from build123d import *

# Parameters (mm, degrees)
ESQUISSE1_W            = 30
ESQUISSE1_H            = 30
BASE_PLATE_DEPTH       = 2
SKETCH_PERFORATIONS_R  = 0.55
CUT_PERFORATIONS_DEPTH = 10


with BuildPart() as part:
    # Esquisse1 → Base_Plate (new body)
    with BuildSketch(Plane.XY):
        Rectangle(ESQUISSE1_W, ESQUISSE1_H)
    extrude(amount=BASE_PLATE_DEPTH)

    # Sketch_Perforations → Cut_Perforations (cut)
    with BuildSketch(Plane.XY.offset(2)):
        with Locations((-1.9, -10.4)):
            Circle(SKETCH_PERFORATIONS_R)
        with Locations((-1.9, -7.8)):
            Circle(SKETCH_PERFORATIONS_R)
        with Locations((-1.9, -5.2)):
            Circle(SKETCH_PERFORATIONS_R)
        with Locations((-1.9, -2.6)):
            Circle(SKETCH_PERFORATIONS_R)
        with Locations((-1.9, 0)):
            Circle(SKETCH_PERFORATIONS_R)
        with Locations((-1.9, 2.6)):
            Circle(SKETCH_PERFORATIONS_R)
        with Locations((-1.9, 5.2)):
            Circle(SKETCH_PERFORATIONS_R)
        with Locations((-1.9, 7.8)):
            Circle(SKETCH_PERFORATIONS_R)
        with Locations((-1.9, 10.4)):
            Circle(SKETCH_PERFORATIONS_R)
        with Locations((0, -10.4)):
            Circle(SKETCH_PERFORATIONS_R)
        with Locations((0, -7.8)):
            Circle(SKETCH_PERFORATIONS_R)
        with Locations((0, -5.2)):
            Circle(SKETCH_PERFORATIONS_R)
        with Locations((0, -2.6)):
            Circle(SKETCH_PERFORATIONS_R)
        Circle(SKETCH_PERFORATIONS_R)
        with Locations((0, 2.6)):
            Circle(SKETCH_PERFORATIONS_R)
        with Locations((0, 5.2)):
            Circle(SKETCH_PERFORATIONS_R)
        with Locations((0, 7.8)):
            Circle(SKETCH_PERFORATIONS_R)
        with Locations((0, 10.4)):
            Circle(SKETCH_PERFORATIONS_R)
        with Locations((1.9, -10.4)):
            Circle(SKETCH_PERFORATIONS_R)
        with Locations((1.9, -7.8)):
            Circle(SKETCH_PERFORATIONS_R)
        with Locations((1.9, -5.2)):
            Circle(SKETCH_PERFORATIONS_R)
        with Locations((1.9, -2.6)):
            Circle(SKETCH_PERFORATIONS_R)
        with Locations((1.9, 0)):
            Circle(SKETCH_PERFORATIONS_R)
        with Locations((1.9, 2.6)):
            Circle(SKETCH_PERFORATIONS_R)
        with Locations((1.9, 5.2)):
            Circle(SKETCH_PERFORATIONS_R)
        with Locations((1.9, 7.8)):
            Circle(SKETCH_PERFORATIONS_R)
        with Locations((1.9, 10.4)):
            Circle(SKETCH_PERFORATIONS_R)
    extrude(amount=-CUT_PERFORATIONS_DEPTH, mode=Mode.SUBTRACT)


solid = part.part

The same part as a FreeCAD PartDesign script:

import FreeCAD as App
import Part
import Sketcher
from FreeCAD import Vector

doc = App.newDocument("Part")
body = doc.addObject("PartDesign::Body", "Body")

# Sketch on XY plane
sketch1 = body.newObject("Sketcher::SketchObject", "Sketch")
sketch1.AttachmentSupport = (doc.getObject("XY_Plane"), [""])
sketch1.MapMode = "FlatFace"
sketch1.addGeometry([
    Part.LineSegment(Vector(-15, 15, 0), Vector(-15, -15, 0)),
    Part.LineSegment(Vector(-15, -15, 0), Vector(15, -15, 0)),
    Part.LineSegment(Vector(15, -15, 0), Vector(15, 15, 0)),
    Part.LineSegment(Vector(15, 15, 0), Vector(-15, 15, 0)),
], False)
sketch1.addConstraint([
    Sketcher.Constraint("Coincident", 0, 2, 1, 1),
    Sketcher.Constraint("Coincident", 1, 2, 2, 1),
    Sketcher.Constraint("Coincident", 2, 2, 3, 1),
    Sketcher.Constraint("Coincident", 3, 2, 0, 1),
    Sketcher.Constraint("Vertical", 0),
    Sketcher.Constraint("Horizontal", 1),
    Sketcher.Constraint("Vertical", 2),
    Sketcher.Constraint("Horizontal", 3),
    Sketcher.Constraint("Symmetric", 0, 2, 2, 2, -1, 1),
    Sketcher.Constraint("Equal", 3, 0),
    Sketcher.Constraint("DistanceX", 1, 1, 1, 2, 30.0),
])
pad1 = body.newObject("PartDesign::Pad", "Pad")
pad1.Profile = sketch1
pad1.Length = 2

# Sketch on XY plane
sketch2 = body.newObject("Sketcher::SketchObject", "Sketch001")
sketch2.AttachmentSupport = (doc.getObject("XY_Plane"), [""])
sketch2.MapMode = "FlatFace"
sketch2.AttachmentOffset = App.Placement(Vector(0, 0, 2), App.Rotation())
sketch2.addGeometry([
    Part.Circle(Vector(-1.9, -10.4, 0), Vector(0, 0, 1), 0.6),  # 0
    Part.Circle(Vector(-1.9, -7.8, 0), Vector(0, 0, 1), 0.6),  # 1
    Part.Circle(Vector(-1.9, -5.2, 0), Vector(0, 0, 1), 0.6),  # 2
    Part.Circle(Vector(-1.9, -2.6, 0), Vector(0, 0, 1), 0.6),  # 3
    Part.Circle(Vector(-1.9, 0, 0), Vector(0, 0, 1), 0.6),  # 4
    Part.Circle(Vector(-1.9, 2.6, 0), Vector(0, 0, 1), 0.6),  # 5
    Part.Circle(Vector(-1.9, 5.2, 0), Vector(0, 0, 1), 0.6),  # 6
    Part.Circle(Vector(-1.9, 7.8, 0), Vector(0, 0, 1), 0.6),  # 7
    Part.Circle(Vector(-1.9, 10.4, 0), Vector(0, 0, 1), 0.6),  # 8
    Part.Circle(Vector(0, -10.4, 0), Vector(0, 0, 1), 0.6),  # 9
    Part.Circle(Vector(0, -7.8, 0), Vector(0, 0, 1), 0.6),  # 10
    Part.Circle(Vector(0, -5.2, 0), Vector(0, 0, 1), 0.6),  # 11
    Part.Circle(Vector(0, -2.6, 0), Vector(0, 0, 1), 0.6),  # 12
    Part.Circle(Vector(0, 0, 0), Vector(0, 0, 1), 0.6),  # 13
    Part.Circle(Vector(0, 2.6, 0), Vector(0, 0, 1), 0.6),  # 14
    Part.Circle(Vector(0, 5.2, 0), Vector(0, 0, 1), 0.6),  # 15
    Part.Circle(Vector(0, 7.8, 0), Vector(0, 0, 1), 0.6),  # 16
    Part.Circle(Vector(0, 10.4, 0), Vector(0, 0, 1), 0.6),  # 17
    Part.Circle(Vector(1.9, -10.4, 0), Vector(0, 0, 1), 0.6),  # 18
    Part.Circle(Vector(1.9, -7.8, 0), Vector(0, 0, 1), 0.6),  # 19
    Part.Circle(Vector(1.9, -5.2, 0), Vector(0, 0, 1), 0.6),  # 20
    Part.Circle(Vector(1.9, -2.6, 0), Vector(0, 0, 1), 0.6),  # 21
    Part.Circle(Vector(1.9, 0, 0), Vector(0, 0, 1), 0.6),  # 22
    Part.Circle(Vector(1.9, 2.6, 0), Vector(0, 0, 1), 0.6),  # 23
    Part.Circle(Vector(1.9, 5.2, 0), Vector(0, 0, 1), 0.6),  # 24
    Part.Circle(Vector(1.9, 7.8, 0), Vector(0, 0, 1), 0.6),  # 25
    Part.Circle(Vector(1.9, 10.4, 0), Vector(0, 0, 1), 0.6),  # 26
], False)
sketch2.addConstraint([
    Sketcher.Constraint("Coincident", 13, 3, -1, 1),
    Sketcher.Constraint("Equal", 0, 1),
    Sketcher.Constraint("Equal", 1, 2),
    Sketcher.Constraint("Equal", 2, 3),
    Sketcher.Constraint("Equal", 3, 4),
    Sketcher.Constraint("Equal", 4, 5),
    Sketcher.Constraint("Equal", 5, 6),
    Sketcher.Constraint("Equal", 6, 7),
    Sketcher.Constraint("Equal", 7, 8),
    Sketcher.Constraint("Equal", 8, 9),
    Sketcher.Constraint("Equal", 9, 10),
    Sketcher.Constraint("Equal", 10, 11),
    Sketcher.Constraint("Equal", 11, 12),
    Sketcher.Constraint("Equal", 12, 13),
    Sketcher.Constraint("Equal", 13, 14),
    Sketcher.Constraint("Equal", 14, 15),
    Sketcher.Constraint("Equal", 15, 16),
    Sketcher.Constraint("Equal", 16, 17),
    Sketcher.Constraint("Equal", 17, 18),
    Sketcher.Constraint("Equal", 18, 19),
    Sketcher.Constraint("Equal", 19, 20),
    Sketcher.Constraint("Equal", 20, 21),
    Sketcher.Constraint("Equal", 21, 22),
    Sketcher.Constraint("Equal", 22, 23),
    Sketcher.Constraint("Equal", 23, 24),
    Sketcher.Constraint("Equal", 24, 25),
    Sketcher.Constraint("Equal", 25, 26),
    Sketcher.Constraint("Symmetric", 12, 3, 14, 3, -1, 1),
    Sketcher.Constraint("Symmetric", 11, 3, 15, 3, -1, 1),
    Sketcher.Constraint("Symmetric", 10, 3, 16, 3, -1, 1),
    Sketcher.Constraint("Symmetric", 9, 3, 17, 3, -1, 1),
    Sketcher.Constraint("Symmetric", 8, 3, 18, 3, -1, 1),
    Sketcher.Constraint("Symmetric", 7, 3, 19, 3, -1, 1),
    Sketcher.Constraint("Symmetric", 6, 3, 20, 3, -1, 1),
    Sketcher.Constraint("Symmetric", 5, 3, 21, 3, -1, 1),
    Sketcher.Constraint("Symmetric", 4, 3, 22, 3, -1, 1),
    Sketcher.Constraint("Symmetric", 3, 3, 23, 3, -1, 1),
    Sketcher.Constraint("Symmetric", 2, 3, 24, 3, -1, 1),
    Sketcher.Constraint("Symmetric", 1, 3, 25, 3, -1, 1),
    Sketcher.Constraint("Symmetric", 0, 3, 26, 3, -1, 1),
    Sketcher.Constraint("Symmetric", 0, 3, 18, 3, -2),
    Sketcher.Constraint("Symmetric", 1, 3, 19, 3, -2),
    Sketcher.Constraint("Symmetric", 2, 3, 20, 3, -2),
    Sketcher.Constraint("Symmetric", 3, 3, 21, 3, -2),
    Sketcher.Constraint("PointOnObject", 4, 3, -1),
    Sketcher.Constraint("PointOnObject", 9, 3, -2),
    Sketcher.Constraint("PointOnObject", 10, 3, -2),
    Sketcher.Constraint("PointOnObject", 11, 3, -2),
    Sketcher.Constraint("PointOnObject", 12, 3, -2),
    Sketcher.Constraint("Horizontal", 0, 3, 9, 3),
    Sketcher.Constraint("Horizontal", 1, 3, 10, 3),
    Sketcher.Constraint("Horizontal", 2, 3, 11, 3),
    Sketcher.Constraint("Horizontal", 3, 3, 12, 3),
    Sketcher.Constraint("Vertical", 0, 3, 1, 3),
    Sketcher.Constraint("Vertical", 1, 3, 2, 3),
    Sketcher.Constraint("Vertical", 2, 3, 3, 3),
    Sketcher.Constraint("Vertical", 3, 3, 4, 3),
    Sketcher.Constraint("Diameter", 0, 1.1),
    Sketcher.Constraint("DistanceY", 0, 3, 5, 3, 13.0),
    Sketcher.Constraint("DistanceY", 1, 3, 6, 3, 13.0),
    Sketcher.Constraint("DistanceX", 0, 3, -1, 1, 1.9),
    Sketcher.Constraint("DistanceY", 0, 3, -1, 1, 10.4),
    Sketcher.Constraint("DistanceY", 1, 3, -1, 1, 7.8),
])
pocket1 = body.newObject("PartDesign::Pocket", "Pocket")
pocket1.Profile = sketch2
pocket1.Length = 10

doc.recompute()
